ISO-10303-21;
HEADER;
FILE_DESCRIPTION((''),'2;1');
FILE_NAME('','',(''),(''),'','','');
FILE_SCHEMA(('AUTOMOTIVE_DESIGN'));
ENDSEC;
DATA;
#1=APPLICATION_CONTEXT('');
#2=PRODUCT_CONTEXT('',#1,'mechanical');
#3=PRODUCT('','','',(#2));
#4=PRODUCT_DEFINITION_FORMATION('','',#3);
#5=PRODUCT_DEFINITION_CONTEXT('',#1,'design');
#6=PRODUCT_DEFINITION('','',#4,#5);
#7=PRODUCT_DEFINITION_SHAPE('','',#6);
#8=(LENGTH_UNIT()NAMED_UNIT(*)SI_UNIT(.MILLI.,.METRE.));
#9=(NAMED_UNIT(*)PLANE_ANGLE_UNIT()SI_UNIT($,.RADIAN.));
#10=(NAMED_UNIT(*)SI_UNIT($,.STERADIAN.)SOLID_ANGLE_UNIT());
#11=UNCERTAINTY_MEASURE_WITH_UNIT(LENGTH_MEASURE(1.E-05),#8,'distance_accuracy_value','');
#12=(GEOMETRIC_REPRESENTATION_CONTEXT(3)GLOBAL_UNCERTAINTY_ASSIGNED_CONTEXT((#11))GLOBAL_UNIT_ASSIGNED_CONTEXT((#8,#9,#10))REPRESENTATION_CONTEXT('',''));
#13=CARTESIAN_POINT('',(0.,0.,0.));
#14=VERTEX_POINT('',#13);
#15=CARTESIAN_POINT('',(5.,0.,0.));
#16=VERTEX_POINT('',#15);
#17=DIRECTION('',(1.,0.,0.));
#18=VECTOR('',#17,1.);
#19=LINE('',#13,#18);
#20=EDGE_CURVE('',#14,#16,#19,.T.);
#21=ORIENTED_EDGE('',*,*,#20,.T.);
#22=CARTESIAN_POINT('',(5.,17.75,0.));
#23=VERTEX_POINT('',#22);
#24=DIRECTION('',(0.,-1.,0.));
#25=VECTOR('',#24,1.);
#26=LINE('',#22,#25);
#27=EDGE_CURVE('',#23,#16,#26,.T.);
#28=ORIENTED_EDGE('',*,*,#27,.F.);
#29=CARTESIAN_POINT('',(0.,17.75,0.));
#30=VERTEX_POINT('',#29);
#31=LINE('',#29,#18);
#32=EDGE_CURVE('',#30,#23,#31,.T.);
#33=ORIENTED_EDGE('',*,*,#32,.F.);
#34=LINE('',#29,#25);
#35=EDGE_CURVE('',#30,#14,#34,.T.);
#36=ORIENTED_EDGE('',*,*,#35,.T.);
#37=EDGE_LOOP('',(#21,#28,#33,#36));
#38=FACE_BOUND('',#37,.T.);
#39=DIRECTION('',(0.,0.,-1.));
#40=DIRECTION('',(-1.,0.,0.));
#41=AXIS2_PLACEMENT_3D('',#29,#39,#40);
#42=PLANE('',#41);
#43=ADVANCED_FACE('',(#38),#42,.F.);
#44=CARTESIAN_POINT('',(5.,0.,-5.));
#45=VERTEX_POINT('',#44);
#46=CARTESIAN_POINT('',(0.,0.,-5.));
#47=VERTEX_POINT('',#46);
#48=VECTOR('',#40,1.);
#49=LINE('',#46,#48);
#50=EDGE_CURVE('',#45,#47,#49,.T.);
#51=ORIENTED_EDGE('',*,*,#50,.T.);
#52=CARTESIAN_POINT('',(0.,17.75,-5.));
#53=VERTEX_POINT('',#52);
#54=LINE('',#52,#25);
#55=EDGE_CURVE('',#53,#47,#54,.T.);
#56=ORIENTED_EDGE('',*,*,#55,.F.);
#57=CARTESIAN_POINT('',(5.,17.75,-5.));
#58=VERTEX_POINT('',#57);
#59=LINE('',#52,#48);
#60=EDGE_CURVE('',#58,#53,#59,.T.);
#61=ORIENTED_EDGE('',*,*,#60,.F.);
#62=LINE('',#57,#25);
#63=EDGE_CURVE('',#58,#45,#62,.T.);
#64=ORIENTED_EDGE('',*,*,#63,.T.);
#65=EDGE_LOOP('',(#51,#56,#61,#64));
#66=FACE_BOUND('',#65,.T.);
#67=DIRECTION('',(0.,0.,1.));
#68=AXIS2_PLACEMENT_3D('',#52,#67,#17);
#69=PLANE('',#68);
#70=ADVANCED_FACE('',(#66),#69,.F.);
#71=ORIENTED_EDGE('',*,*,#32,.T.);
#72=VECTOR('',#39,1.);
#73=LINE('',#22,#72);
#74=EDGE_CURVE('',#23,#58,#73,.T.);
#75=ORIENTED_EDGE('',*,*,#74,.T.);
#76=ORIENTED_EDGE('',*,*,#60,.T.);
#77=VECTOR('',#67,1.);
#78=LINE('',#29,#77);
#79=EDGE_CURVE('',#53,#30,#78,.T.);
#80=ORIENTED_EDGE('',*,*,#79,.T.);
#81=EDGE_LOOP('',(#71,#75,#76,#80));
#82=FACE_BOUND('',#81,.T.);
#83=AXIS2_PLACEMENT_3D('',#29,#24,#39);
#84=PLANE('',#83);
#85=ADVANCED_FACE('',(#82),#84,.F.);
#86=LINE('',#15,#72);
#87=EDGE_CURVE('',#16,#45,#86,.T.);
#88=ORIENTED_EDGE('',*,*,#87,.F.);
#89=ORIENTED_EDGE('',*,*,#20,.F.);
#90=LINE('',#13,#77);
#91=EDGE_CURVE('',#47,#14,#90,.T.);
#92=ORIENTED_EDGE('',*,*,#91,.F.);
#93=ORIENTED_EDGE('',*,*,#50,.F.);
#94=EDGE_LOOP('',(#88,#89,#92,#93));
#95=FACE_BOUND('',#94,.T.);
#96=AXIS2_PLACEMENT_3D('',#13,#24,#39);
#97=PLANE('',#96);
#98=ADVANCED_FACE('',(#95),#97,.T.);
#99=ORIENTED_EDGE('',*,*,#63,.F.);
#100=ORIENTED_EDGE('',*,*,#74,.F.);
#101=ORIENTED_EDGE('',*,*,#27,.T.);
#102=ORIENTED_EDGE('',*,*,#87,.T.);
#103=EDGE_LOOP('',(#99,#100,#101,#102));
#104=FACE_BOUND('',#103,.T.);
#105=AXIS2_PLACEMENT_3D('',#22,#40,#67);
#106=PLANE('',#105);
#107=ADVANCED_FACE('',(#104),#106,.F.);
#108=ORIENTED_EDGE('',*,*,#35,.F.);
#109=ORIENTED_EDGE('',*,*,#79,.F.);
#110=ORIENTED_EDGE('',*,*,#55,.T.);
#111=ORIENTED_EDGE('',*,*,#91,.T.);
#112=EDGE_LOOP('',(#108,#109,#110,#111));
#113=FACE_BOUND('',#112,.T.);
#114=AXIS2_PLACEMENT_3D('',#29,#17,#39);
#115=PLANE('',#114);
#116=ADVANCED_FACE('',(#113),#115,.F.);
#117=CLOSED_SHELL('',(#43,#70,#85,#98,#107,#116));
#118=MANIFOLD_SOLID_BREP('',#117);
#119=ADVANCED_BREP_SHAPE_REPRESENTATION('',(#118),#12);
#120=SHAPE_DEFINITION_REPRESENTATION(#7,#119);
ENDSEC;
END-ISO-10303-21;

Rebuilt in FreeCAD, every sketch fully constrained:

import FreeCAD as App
import Part
import Sketcher
from FreeCAD import Vector

doc = App.newDocument("Part")
params = doc.addObject("Spreadsheet::Sheet", "Params")
for row, (alias, value) in enumerate([
    ("sketch1_width", "5 mm"),
    ("pad1_length", "17.75 mm"),
], start=1):
    params.set(f"A{row}", alias)
    params.set(f"B{row}", "=" + value)
    params.setAlias(f"B{row}", alias)

body = doc.addObject("PartDesign::Body", "Body")

# Sketch on XZ plane
sketch1 = doc.addObject("Sketcher::SketchObject", "Sketch")
body.addObject(sketch1)
sketch1.AttachmentSupport = (doc.XZ_Plane, [""])
sketch1.MapMode = "FlatFace"
sketch1.addGeometry([
    Part.LineSegment(Vector(0, -5, 0), Vector(0, 0, 0)),
    Part.LineSegment(Vector(0, 0, 0), Vector(5, 0, 0)),
    Part.LineSegment(Vector(5, 0, 0), Vector(5, -5, 0)),
    Part.LineSegment(Vector(5, -5, 0), Vector(0, -5, 0)),
], False)
sketch1.addConstraint([
    Sketcher.Constraint("Coincident", 0, 2, 1, 1),
    Sketcher.Constraint("Coincident", 1, 2, 2, 1),
    Sketcher.Constraint("Coincident", 2, 2, 3, 1),
    Sketcher.Constraint("Coincident", 3, 2, 0, 1),
    Sketcher.Constraint("Vertical", 0),
    Sketcher.Constraint("Horizontal", 1),
    Sketcher.Constraint("Vertical", 2),
    Sketcher.Constraint("Horizontal", 3),
    Sketcher.Constraint("Coincident", 0, 2, -1, 1),
    Sketcher.Constraint("Equal", 3, 0),
    Sketcher.Constraint("DistanceX", 1, 1, 1, 2, 5.0),
])
sketch1.setExpression("Constraints[10]", "Params.sketch1_width")
pad1 = doc.addObject("PartDesign::Pad", "Pad")
body.addObject(pad1)
pad1.Profile = sketch1
pad1.setExpression("Length", "Params.pad1_length")
pad1.Reversed = True

doc.recompute()
